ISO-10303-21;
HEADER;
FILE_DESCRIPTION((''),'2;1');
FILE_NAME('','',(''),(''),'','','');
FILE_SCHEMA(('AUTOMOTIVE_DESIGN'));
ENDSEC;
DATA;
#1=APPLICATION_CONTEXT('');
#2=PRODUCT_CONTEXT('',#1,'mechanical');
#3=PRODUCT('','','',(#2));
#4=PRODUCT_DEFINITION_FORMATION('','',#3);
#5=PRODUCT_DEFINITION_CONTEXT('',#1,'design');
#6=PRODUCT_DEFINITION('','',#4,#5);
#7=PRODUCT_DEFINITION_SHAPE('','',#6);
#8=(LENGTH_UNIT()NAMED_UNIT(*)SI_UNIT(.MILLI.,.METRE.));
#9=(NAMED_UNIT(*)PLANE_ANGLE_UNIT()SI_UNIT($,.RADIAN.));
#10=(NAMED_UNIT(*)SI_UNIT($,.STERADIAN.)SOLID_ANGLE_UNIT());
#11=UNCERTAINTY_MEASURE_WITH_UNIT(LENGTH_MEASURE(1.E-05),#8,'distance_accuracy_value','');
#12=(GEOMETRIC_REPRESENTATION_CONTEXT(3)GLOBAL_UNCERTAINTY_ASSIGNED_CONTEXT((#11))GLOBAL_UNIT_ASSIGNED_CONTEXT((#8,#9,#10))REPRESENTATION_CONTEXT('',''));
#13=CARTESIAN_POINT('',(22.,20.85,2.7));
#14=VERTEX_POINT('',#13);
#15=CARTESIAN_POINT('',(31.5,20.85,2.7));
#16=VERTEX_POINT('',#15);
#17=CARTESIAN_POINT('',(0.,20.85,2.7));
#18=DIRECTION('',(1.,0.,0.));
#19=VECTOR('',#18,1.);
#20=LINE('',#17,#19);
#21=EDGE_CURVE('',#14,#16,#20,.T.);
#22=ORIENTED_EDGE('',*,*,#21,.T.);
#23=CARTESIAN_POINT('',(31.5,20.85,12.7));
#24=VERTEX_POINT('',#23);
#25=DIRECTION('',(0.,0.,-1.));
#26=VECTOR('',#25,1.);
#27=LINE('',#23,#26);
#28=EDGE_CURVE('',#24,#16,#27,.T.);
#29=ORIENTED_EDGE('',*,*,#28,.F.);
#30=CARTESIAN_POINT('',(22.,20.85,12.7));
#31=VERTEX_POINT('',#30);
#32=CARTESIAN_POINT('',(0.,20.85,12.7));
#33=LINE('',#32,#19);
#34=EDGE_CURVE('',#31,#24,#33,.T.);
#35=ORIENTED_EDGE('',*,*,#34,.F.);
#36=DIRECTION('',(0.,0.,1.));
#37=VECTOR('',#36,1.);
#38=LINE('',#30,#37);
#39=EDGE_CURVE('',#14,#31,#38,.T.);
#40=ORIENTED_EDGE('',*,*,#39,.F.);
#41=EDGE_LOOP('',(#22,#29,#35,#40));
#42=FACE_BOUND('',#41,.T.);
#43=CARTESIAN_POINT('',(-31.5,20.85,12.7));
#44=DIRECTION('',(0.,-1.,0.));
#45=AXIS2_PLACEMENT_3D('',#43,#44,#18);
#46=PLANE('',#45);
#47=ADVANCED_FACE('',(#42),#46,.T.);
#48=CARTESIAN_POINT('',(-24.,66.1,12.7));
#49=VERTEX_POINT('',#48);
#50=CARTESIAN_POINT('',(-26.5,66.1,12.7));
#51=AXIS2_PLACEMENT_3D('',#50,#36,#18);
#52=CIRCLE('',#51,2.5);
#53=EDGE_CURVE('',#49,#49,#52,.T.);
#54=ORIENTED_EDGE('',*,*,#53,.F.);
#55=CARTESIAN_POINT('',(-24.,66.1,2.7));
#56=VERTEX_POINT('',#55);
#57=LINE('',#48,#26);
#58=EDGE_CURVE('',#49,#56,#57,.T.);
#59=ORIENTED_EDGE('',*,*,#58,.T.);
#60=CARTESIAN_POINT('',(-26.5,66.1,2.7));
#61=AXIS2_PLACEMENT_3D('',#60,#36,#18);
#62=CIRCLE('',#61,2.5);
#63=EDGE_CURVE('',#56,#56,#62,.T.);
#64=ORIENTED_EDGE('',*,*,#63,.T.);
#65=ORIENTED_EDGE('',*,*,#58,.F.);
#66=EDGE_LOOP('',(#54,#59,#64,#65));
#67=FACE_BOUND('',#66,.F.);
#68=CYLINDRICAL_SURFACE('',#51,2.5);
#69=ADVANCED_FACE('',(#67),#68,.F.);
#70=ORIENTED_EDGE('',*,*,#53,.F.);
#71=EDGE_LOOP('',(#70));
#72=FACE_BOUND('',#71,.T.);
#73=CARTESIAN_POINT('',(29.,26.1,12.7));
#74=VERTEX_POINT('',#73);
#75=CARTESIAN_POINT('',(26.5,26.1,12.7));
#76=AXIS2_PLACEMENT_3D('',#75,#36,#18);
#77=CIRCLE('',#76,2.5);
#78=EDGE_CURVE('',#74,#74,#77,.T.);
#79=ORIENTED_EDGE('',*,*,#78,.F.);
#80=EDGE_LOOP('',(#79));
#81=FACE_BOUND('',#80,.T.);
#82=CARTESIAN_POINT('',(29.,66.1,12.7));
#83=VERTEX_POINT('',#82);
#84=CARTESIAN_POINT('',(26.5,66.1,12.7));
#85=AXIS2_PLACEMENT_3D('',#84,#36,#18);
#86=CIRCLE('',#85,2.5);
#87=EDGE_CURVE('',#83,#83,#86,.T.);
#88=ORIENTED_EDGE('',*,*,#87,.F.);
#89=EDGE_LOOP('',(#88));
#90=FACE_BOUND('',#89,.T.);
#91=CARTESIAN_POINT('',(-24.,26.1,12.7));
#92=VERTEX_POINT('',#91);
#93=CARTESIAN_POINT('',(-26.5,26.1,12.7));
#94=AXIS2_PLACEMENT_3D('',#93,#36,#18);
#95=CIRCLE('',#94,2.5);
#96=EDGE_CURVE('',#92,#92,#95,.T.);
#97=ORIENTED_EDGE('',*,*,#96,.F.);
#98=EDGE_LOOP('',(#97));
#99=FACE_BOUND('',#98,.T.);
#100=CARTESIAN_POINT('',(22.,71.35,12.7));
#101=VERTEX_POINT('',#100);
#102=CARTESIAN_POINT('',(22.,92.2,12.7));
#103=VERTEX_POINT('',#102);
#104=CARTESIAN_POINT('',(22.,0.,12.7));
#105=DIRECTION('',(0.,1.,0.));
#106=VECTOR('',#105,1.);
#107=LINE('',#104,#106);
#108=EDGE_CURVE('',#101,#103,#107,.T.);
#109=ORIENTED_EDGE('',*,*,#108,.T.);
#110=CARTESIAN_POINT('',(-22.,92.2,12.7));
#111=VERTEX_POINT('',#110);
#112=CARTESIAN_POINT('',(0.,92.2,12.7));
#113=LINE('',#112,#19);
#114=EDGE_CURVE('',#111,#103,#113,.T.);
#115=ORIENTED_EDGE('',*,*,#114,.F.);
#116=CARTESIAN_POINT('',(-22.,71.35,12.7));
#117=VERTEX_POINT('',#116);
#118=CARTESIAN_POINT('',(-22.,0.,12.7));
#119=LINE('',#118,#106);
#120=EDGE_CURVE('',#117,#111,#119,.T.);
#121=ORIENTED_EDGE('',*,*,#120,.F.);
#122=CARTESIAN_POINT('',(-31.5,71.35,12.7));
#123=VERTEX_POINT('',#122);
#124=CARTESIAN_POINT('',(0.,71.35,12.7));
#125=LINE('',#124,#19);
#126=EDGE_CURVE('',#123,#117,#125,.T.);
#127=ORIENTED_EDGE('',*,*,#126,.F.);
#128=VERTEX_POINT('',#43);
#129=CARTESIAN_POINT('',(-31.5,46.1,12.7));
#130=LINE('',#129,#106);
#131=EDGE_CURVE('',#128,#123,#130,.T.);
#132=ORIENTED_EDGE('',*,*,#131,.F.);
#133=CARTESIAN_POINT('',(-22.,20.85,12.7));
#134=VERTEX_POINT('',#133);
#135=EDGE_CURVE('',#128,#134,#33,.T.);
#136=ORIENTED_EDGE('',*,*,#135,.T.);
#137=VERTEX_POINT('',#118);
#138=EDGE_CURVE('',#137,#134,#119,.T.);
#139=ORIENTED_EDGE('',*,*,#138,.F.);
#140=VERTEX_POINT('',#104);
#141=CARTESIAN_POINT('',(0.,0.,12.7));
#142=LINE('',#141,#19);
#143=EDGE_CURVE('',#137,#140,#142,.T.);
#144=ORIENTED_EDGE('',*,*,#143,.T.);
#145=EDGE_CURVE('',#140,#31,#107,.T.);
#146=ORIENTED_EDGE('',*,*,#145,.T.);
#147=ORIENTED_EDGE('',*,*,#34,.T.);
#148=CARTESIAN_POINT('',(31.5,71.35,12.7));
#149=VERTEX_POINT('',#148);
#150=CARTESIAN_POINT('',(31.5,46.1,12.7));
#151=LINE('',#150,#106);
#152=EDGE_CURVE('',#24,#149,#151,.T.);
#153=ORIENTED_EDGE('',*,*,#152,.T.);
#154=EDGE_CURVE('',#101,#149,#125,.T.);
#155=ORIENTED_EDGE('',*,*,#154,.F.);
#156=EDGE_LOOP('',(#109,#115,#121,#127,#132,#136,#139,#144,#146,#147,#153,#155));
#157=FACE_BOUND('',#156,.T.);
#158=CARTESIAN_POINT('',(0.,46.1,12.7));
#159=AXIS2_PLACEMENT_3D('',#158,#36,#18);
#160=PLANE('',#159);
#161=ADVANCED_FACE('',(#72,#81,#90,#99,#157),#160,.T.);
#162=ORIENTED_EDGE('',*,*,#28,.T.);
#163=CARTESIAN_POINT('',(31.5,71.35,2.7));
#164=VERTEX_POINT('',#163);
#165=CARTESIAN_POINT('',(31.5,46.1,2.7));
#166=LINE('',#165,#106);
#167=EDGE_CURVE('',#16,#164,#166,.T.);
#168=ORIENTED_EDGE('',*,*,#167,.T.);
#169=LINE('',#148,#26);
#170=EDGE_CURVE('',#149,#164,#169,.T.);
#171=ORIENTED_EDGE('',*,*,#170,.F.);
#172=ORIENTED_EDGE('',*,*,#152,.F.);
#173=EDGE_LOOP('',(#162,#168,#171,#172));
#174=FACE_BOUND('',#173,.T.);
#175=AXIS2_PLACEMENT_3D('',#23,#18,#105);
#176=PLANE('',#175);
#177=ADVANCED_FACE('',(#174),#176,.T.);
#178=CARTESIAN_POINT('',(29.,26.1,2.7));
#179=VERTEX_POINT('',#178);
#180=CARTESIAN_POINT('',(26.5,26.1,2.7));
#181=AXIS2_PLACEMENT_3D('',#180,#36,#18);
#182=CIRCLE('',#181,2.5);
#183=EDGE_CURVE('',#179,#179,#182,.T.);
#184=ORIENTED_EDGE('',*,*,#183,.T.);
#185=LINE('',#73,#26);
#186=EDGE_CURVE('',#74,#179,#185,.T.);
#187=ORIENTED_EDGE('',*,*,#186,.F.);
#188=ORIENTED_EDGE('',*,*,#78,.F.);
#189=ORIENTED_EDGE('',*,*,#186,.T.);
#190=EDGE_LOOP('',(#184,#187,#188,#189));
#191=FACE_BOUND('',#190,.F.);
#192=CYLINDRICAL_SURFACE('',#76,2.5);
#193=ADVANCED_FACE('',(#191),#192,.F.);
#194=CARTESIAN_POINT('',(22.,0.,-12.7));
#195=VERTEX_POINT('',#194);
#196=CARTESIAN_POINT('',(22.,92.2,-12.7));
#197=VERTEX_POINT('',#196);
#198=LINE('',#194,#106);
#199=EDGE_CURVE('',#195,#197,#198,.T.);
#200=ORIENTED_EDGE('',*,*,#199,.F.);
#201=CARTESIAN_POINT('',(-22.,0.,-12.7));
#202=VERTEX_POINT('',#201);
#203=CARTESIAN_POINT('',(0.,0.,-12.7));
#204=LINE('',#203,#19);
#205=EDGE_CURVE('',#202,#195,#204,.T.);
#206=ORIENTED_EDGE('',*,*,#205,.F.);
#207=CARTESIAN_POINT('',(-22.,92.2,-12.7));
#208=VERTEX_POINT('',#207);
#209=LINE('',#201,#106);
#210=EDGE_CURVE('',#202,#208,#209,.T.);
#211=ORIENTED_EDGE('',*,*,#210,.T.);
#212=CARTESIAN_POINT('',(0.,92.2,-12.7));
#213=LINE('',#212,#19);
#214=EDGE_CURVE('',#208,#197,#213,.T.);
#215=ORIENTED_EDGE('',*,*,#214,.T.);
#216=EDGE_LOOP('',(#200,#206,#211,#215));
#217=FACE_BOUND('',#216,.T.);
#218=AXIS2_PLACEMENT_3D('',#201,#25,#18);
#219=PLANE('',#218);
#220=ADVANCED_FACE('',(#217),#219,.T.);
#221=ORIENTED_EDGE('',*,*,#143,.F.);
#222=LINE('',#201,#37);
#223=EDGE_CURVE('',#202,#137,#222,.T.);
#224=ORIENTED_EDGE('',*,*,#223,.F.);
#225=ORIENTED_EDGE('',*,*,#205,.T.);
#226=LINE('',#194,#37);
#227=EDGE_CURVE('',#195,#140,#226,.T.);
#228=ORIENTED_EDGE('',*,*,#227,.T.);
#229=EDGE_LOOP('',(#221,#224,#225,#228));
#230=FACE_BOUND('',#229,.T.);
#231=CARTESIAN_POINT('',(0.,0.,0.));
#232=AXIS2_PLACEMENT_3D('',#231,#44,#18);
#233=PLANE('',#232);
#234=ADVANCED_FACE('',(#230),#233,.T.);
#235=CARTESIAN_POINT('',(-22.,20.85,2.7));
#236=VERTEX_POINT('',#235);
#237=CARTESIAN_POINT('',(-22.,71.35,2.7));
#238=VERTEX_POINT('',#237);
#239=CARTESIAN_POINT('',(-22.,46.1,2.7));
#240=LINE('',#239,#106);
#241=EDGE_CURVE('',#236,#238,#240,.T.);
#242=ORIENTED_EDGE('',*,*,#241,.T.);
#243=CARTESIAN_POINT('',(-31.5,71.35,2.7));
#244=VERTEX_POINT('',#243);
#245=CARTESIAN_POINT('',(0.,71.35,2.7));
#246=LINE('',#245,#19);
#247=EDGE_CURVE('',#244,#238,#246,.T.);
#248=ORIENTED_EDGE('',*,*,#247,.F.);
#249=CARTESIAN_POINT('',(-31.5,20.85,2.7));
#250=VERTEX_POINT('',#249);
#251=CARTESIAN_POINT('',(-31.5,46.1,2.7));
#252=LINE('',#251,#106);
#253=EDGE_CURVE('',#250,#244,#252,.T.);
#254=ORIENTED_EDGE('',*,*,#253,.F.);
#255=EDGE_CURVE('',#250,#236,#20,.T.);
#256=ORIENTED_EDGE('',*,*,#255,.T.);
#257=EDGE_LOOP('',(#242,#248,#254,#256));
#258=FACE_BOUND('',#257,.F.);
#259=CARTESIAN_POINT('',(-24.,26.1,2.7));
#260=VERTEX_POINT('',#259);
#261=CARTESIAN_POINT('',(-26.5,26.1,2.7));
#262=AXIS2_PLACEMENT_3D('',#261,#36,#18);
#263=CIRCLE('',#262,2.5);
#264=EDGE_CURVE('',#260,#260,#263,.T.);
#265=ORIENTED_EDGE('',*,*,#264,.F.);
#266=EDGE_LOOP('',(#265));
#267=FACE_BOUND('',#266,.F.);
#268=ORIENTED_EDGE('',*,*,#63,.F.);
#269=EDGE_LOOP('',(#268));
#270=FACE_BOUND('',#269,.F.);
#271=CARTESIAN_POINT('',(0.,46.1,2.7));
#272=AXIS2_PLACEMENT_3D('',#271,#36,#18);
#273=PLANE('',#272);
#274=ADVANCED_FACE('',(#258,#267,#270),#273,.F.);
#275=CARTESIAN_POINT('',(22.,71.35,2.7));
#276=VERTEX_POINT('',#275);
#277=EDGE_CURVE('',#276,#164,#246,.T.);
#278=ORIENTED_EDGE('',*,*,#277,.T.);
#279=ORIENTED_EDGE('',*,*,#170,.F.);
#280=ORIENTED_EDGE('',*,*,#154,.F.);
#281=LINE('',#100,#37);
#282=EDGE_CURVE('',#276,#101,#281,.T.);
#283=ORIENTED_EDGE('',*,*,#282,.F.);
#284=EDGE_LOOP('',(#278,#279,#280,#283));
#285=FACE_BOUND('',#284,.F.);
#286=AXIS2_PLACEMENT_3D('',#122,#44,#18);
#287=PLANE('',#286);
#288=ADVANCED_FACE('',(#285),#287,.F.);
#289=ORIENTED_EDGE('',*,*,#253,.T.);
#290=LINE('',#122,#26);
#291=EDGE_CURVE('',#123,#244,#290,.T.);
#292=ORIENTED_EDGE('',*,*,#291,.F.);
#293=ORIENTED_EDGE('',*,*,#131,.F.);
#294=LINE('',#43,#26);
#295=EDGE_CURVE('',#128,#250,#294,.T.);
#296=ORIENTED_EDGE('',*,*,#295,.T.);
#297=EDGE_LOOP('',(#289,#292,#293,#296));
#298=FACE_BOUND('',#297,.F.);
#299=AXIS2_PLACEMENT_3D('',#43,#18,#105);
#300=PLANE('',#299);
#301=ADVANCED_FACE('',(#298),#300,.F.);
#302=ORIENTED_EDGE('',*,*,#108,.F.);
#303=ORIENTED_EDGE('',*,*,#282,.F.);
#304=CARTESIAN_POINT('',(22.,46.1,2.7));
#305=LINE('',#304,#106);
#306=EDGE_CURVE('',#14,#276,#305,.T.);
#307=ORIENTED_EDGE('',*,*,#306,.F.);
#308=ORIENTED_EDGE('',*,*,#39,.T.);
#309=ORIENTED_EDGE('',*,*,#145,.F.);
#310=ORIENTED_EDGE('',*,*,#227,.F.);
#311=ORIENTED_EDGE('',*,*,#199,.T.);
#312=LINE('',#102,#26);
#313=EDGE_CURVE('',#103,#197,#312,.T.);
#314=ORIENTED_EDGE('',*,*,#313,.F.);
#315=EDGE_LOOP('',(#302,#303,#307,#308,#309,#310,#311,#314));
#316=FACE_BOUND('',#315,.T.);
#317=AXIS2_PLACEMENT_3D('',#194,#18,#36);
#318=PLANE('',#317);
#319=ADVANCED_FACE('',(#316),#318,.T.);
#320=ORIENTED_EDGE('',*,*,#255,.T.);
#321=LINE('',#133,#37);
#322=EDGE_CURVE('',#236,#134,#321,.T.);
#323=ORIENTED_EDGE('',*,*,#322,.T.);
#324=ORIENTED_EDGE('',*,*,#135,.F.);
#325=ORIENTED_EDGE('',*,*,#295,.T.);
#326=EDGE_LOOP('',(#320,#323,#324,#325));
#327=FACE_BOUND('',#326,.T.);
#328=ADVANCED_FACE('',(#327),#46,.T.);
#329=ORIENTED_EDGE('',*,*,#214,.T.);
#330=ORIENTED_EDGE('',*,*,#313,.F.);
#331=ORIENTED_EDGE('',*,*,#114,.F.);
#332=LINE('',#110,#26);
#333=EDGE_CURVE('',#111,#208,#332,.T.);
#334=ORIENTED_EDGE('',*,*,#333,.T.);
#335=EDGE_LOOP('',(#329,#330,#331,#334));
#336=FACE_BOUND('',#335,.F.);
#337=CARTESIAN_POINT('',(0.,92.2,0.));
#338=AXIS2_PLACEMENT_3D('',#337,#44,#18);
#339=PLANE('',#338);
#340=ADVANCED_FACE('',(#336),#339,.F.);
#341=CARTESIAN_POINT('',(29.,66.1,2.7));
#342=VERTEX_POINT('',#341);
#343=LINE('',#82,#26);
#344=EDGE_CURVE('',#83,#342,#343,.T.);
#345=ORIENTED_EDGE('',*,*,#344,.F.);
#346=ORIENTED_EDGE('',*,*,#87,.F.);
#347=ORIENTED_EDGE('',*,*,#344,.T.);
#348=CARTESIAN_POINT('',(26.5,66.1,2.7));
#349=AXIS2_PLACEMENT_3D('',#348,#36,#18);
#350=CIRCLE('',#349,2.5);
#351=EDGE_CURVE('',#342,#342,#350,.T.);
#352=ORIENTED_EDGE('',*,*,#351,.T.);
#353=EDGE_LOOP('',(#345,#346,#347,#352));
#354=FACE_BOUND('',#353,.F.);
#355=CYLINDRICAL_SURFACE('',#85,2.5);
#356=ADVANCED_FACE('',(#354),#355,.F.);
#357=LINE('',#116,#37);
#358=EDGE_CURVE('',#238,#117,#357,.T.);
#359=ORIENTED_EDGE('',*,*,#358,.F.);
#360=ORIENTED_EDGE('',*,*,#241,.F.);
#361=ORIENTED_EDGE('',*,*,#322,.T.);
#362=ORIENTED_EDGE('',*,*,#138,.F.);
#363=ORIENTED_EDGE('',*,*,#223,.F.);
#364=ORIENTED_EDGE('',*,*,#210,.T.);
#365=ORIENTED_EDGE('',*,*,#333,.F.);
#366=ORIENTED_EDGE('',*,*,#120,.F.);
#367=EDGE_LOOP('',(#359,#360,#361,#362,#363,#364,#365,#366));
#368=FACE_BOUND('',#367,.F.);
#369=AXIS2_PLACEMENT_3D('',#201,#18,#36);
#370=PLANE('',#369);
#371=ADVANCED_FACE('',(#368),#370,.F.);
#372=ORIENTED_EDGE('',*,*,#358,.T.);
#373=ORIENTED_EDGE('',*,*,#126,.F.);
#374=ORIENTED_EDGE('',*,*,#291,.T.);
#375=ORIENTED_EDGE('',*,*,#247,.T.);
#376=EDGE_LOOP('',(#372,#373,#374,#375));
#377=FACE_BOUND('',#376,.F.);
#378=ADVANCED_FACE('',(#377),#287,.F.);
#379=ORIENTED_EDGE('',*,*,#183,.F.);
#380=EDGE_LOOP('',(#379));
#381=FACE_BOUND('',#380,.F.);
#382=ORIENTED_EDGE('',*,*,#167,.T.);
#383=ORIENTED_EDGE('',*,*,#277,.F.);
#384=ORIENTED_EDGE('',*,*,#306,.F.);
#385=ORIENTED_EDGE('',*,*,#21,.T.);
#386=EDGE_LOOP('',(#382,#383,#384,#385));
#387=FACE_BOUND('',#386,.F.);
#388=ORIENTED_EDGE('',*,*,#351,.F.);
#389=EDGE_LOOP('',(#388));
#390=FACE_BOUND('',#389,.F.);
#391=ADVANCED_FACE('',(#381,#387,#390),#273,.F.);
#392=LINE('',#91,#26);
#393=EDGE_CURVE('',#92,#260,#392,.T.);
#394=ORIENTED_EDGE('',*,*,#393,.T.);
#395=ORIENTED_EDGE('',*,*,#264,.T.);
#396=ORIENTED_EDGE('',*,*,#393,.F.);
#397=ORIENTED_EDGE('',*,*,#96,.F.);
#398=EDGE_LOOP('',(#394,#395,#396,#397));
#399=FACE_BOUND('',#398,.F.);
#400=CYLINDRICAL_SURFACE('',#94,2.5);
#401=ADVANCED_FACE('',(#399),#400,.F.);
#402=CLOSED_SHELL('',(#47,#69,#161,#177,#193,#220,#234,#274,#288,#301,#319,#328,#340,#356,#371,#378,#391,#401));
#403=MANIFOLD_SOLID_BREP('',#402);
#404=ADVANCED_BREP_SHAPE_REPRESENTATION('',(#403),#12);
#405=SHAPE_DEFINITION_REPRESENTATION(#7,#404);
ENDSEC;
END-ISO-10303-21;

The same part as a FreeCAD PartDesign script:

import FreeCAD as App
import Part
import Sketcher


def add_polygon(sketch, points):
    """Adds a closed chain of lines whose ends are joined by coincident constraints."""
    first, n = sketch.GeometryCount, len(points)
    for a, b in zip(points, points[1:] + points[:1]):
        sketch.addGeometry(Part.LineSegment(App.Vector(*a, 0), App.Vector(*b, 0)), False)
    for i in range(n):
        sketch.addConstraint(Sketcher.Constraint("Coincident", first + i, 2, first + (i + 1) % n, 1))

doc = App.newDocument("Part")
body = doc.addObject("PartDesign::Body", "Body")

sketch1 = body.newObject("Sketcher::SketchObject", "Sketch")
sketch1.AttachmentSupport = (doc.getObject("XZ_Plane"), [""])
sketch1.MapMode = "FlatFace"
add_polygon(sketch1, [(-22, 13), (-22, -13), (22, -13), (22, 13)])
sketch1.addConstraint([
    Sketcher.Constraint("Vertical", 0),
    Sketcher.Constraint("Horizontal", 1),
    Sketcher.Constraint("Vertical", 2),
    Sketcher.Constraint("Horizontal", 3),
    Sketcher.Constraint("Symmetric", 0, 2, 2, 2, -1, 1),
    Sketcher.Constraint("DistanceX", 1, 1, 1, 2, 44.0),
    Sketcher.Constraint("DistanceY", 0, 2, 0, 1, 25.4),
])
pad1 = body.newObject("PartDesign::Pad", "Pad")
pad1.Profile = sketch1
pad1.Length = 92.2
pad1.Reversed = True

sketch2 = body.newObject("Sketcher::SketchObject", "Sketch001")
sketch2.AttachmentSupport = (doc.getObject("XY_Plane"), [""])
sketch2.MapMode = "FlatFace"
sketch2.AttachmentOffset = App.Placement(App.Vector(0, 0, 12.7), App.Rotation())
add_polygon(sketch2, [(-31.5, 71.3), (-31.5, 20.9), (-22, 20.9), (-22, 0), (22, 0), (22, 20.9), (31.5, 20.9), (31.5, 71.3), (22, 71.3), (22, 92.2), (-22, 92.2), (-22, 71.3)])
sketch2.addGeometry(Part.Circle(App.Vector(-26.5, 26.1, 0), App.Vector(0, 0, 1), 2.5), False)
sketch2.addGeometry(Part.Circle(App.Vector(-26.5, 66.1, 0), App.Vector(0, 0, 1), 2.5), False)
sketch2.addGeometry(Part.Circle(App.Vector(26.5, 66.1, 0), App.Vector(0, 0, 1), 2.5), False)
sketch2.addGeometry(Part.Circle(App.Vector(26.5, 26.1, 0), App.Vector(0, 0, 1), 2.5), False)
sketch2.addConstraint([
    Sketcher.Constraint("Vertical", 0),
    Sketcher.Constraint("Horizontal", 1),
    Sketcher.Constraint("Vertical", 2),
    Sketcher.Constraint("Horizontal", 3),
    Sketcher.Constraint("Vertical", 4),
    Sketcher.Constraint("Horizontal", 5),
    Sketcher.Constraint("Vertical", 6),
    Sketcher.Constraint("Horizontal", 7),
    Sketcher.Constraint("Vertical", 8),
    Sketcher.Constraint("Horizontal", 9),
    Sketcher.Constraint("Vertical", 10),
    Sketcher.Constraint("Horizontal", 11),
    Sketcher.Constraint("Equal", 12, 13),
    Sketcher.Constraint("Equal", 13, 14),
    Sketcher.Constraint("Equal", 14, 15),
    Sketcher.Constraint("Symmetric", 2, 2, 3, 2, -1, 1),
    Sketcher.Constraint("Symmetric", 13, 3, 14, 3, -2),
    Sketcher.Constraint("Symmetric", 12, 3, 15, 3, -2),
    Sketcher.Constraint("Symmetric", 0, 2, 5, 2, -2),
    Sketcher.Constraint("Symmetric", 7, 2, 10, 2, -2),
    Sketcher.Constraint("Vertical", 12, 3, 13, 3),
    Sketcher.Constraint("Vertical", 4, 2, 7, 2),
    Sketcher.Constraint("Equal", 4, 8),
    Sketcher.Constraint("Diameter", 12, 5.0),
    Sketcher.Constraint("DistanceX", 3, 1, 3, 2, 44.0),
    Sketcher.Constraint("DistanceX", 1, 1, 1, 2, 9.5),
    Sketcher.Constraint("DistanceY", 0, 2, 0, 1, 50.5),
    Sketcher.Constraint("DistanceY", 12, 3, 13, 3, 40.0),
    Sketcher.Constraint("DistanceX", 13, 3, 14, 3, 53.0),
    Sketcher.Constraint("DistanceY", 2, 2, 2, 1, 20.85),
    Sketcher.Constraint("DistanceY", -1, 1, 12, 3, 26.1),
])
pad2 = body.newObject("PartDesign::Pad", "Pad001")
pad2.Profile = sketch2
pad2.Length = 10
pad2.Reversed = True

doc.recompute()
